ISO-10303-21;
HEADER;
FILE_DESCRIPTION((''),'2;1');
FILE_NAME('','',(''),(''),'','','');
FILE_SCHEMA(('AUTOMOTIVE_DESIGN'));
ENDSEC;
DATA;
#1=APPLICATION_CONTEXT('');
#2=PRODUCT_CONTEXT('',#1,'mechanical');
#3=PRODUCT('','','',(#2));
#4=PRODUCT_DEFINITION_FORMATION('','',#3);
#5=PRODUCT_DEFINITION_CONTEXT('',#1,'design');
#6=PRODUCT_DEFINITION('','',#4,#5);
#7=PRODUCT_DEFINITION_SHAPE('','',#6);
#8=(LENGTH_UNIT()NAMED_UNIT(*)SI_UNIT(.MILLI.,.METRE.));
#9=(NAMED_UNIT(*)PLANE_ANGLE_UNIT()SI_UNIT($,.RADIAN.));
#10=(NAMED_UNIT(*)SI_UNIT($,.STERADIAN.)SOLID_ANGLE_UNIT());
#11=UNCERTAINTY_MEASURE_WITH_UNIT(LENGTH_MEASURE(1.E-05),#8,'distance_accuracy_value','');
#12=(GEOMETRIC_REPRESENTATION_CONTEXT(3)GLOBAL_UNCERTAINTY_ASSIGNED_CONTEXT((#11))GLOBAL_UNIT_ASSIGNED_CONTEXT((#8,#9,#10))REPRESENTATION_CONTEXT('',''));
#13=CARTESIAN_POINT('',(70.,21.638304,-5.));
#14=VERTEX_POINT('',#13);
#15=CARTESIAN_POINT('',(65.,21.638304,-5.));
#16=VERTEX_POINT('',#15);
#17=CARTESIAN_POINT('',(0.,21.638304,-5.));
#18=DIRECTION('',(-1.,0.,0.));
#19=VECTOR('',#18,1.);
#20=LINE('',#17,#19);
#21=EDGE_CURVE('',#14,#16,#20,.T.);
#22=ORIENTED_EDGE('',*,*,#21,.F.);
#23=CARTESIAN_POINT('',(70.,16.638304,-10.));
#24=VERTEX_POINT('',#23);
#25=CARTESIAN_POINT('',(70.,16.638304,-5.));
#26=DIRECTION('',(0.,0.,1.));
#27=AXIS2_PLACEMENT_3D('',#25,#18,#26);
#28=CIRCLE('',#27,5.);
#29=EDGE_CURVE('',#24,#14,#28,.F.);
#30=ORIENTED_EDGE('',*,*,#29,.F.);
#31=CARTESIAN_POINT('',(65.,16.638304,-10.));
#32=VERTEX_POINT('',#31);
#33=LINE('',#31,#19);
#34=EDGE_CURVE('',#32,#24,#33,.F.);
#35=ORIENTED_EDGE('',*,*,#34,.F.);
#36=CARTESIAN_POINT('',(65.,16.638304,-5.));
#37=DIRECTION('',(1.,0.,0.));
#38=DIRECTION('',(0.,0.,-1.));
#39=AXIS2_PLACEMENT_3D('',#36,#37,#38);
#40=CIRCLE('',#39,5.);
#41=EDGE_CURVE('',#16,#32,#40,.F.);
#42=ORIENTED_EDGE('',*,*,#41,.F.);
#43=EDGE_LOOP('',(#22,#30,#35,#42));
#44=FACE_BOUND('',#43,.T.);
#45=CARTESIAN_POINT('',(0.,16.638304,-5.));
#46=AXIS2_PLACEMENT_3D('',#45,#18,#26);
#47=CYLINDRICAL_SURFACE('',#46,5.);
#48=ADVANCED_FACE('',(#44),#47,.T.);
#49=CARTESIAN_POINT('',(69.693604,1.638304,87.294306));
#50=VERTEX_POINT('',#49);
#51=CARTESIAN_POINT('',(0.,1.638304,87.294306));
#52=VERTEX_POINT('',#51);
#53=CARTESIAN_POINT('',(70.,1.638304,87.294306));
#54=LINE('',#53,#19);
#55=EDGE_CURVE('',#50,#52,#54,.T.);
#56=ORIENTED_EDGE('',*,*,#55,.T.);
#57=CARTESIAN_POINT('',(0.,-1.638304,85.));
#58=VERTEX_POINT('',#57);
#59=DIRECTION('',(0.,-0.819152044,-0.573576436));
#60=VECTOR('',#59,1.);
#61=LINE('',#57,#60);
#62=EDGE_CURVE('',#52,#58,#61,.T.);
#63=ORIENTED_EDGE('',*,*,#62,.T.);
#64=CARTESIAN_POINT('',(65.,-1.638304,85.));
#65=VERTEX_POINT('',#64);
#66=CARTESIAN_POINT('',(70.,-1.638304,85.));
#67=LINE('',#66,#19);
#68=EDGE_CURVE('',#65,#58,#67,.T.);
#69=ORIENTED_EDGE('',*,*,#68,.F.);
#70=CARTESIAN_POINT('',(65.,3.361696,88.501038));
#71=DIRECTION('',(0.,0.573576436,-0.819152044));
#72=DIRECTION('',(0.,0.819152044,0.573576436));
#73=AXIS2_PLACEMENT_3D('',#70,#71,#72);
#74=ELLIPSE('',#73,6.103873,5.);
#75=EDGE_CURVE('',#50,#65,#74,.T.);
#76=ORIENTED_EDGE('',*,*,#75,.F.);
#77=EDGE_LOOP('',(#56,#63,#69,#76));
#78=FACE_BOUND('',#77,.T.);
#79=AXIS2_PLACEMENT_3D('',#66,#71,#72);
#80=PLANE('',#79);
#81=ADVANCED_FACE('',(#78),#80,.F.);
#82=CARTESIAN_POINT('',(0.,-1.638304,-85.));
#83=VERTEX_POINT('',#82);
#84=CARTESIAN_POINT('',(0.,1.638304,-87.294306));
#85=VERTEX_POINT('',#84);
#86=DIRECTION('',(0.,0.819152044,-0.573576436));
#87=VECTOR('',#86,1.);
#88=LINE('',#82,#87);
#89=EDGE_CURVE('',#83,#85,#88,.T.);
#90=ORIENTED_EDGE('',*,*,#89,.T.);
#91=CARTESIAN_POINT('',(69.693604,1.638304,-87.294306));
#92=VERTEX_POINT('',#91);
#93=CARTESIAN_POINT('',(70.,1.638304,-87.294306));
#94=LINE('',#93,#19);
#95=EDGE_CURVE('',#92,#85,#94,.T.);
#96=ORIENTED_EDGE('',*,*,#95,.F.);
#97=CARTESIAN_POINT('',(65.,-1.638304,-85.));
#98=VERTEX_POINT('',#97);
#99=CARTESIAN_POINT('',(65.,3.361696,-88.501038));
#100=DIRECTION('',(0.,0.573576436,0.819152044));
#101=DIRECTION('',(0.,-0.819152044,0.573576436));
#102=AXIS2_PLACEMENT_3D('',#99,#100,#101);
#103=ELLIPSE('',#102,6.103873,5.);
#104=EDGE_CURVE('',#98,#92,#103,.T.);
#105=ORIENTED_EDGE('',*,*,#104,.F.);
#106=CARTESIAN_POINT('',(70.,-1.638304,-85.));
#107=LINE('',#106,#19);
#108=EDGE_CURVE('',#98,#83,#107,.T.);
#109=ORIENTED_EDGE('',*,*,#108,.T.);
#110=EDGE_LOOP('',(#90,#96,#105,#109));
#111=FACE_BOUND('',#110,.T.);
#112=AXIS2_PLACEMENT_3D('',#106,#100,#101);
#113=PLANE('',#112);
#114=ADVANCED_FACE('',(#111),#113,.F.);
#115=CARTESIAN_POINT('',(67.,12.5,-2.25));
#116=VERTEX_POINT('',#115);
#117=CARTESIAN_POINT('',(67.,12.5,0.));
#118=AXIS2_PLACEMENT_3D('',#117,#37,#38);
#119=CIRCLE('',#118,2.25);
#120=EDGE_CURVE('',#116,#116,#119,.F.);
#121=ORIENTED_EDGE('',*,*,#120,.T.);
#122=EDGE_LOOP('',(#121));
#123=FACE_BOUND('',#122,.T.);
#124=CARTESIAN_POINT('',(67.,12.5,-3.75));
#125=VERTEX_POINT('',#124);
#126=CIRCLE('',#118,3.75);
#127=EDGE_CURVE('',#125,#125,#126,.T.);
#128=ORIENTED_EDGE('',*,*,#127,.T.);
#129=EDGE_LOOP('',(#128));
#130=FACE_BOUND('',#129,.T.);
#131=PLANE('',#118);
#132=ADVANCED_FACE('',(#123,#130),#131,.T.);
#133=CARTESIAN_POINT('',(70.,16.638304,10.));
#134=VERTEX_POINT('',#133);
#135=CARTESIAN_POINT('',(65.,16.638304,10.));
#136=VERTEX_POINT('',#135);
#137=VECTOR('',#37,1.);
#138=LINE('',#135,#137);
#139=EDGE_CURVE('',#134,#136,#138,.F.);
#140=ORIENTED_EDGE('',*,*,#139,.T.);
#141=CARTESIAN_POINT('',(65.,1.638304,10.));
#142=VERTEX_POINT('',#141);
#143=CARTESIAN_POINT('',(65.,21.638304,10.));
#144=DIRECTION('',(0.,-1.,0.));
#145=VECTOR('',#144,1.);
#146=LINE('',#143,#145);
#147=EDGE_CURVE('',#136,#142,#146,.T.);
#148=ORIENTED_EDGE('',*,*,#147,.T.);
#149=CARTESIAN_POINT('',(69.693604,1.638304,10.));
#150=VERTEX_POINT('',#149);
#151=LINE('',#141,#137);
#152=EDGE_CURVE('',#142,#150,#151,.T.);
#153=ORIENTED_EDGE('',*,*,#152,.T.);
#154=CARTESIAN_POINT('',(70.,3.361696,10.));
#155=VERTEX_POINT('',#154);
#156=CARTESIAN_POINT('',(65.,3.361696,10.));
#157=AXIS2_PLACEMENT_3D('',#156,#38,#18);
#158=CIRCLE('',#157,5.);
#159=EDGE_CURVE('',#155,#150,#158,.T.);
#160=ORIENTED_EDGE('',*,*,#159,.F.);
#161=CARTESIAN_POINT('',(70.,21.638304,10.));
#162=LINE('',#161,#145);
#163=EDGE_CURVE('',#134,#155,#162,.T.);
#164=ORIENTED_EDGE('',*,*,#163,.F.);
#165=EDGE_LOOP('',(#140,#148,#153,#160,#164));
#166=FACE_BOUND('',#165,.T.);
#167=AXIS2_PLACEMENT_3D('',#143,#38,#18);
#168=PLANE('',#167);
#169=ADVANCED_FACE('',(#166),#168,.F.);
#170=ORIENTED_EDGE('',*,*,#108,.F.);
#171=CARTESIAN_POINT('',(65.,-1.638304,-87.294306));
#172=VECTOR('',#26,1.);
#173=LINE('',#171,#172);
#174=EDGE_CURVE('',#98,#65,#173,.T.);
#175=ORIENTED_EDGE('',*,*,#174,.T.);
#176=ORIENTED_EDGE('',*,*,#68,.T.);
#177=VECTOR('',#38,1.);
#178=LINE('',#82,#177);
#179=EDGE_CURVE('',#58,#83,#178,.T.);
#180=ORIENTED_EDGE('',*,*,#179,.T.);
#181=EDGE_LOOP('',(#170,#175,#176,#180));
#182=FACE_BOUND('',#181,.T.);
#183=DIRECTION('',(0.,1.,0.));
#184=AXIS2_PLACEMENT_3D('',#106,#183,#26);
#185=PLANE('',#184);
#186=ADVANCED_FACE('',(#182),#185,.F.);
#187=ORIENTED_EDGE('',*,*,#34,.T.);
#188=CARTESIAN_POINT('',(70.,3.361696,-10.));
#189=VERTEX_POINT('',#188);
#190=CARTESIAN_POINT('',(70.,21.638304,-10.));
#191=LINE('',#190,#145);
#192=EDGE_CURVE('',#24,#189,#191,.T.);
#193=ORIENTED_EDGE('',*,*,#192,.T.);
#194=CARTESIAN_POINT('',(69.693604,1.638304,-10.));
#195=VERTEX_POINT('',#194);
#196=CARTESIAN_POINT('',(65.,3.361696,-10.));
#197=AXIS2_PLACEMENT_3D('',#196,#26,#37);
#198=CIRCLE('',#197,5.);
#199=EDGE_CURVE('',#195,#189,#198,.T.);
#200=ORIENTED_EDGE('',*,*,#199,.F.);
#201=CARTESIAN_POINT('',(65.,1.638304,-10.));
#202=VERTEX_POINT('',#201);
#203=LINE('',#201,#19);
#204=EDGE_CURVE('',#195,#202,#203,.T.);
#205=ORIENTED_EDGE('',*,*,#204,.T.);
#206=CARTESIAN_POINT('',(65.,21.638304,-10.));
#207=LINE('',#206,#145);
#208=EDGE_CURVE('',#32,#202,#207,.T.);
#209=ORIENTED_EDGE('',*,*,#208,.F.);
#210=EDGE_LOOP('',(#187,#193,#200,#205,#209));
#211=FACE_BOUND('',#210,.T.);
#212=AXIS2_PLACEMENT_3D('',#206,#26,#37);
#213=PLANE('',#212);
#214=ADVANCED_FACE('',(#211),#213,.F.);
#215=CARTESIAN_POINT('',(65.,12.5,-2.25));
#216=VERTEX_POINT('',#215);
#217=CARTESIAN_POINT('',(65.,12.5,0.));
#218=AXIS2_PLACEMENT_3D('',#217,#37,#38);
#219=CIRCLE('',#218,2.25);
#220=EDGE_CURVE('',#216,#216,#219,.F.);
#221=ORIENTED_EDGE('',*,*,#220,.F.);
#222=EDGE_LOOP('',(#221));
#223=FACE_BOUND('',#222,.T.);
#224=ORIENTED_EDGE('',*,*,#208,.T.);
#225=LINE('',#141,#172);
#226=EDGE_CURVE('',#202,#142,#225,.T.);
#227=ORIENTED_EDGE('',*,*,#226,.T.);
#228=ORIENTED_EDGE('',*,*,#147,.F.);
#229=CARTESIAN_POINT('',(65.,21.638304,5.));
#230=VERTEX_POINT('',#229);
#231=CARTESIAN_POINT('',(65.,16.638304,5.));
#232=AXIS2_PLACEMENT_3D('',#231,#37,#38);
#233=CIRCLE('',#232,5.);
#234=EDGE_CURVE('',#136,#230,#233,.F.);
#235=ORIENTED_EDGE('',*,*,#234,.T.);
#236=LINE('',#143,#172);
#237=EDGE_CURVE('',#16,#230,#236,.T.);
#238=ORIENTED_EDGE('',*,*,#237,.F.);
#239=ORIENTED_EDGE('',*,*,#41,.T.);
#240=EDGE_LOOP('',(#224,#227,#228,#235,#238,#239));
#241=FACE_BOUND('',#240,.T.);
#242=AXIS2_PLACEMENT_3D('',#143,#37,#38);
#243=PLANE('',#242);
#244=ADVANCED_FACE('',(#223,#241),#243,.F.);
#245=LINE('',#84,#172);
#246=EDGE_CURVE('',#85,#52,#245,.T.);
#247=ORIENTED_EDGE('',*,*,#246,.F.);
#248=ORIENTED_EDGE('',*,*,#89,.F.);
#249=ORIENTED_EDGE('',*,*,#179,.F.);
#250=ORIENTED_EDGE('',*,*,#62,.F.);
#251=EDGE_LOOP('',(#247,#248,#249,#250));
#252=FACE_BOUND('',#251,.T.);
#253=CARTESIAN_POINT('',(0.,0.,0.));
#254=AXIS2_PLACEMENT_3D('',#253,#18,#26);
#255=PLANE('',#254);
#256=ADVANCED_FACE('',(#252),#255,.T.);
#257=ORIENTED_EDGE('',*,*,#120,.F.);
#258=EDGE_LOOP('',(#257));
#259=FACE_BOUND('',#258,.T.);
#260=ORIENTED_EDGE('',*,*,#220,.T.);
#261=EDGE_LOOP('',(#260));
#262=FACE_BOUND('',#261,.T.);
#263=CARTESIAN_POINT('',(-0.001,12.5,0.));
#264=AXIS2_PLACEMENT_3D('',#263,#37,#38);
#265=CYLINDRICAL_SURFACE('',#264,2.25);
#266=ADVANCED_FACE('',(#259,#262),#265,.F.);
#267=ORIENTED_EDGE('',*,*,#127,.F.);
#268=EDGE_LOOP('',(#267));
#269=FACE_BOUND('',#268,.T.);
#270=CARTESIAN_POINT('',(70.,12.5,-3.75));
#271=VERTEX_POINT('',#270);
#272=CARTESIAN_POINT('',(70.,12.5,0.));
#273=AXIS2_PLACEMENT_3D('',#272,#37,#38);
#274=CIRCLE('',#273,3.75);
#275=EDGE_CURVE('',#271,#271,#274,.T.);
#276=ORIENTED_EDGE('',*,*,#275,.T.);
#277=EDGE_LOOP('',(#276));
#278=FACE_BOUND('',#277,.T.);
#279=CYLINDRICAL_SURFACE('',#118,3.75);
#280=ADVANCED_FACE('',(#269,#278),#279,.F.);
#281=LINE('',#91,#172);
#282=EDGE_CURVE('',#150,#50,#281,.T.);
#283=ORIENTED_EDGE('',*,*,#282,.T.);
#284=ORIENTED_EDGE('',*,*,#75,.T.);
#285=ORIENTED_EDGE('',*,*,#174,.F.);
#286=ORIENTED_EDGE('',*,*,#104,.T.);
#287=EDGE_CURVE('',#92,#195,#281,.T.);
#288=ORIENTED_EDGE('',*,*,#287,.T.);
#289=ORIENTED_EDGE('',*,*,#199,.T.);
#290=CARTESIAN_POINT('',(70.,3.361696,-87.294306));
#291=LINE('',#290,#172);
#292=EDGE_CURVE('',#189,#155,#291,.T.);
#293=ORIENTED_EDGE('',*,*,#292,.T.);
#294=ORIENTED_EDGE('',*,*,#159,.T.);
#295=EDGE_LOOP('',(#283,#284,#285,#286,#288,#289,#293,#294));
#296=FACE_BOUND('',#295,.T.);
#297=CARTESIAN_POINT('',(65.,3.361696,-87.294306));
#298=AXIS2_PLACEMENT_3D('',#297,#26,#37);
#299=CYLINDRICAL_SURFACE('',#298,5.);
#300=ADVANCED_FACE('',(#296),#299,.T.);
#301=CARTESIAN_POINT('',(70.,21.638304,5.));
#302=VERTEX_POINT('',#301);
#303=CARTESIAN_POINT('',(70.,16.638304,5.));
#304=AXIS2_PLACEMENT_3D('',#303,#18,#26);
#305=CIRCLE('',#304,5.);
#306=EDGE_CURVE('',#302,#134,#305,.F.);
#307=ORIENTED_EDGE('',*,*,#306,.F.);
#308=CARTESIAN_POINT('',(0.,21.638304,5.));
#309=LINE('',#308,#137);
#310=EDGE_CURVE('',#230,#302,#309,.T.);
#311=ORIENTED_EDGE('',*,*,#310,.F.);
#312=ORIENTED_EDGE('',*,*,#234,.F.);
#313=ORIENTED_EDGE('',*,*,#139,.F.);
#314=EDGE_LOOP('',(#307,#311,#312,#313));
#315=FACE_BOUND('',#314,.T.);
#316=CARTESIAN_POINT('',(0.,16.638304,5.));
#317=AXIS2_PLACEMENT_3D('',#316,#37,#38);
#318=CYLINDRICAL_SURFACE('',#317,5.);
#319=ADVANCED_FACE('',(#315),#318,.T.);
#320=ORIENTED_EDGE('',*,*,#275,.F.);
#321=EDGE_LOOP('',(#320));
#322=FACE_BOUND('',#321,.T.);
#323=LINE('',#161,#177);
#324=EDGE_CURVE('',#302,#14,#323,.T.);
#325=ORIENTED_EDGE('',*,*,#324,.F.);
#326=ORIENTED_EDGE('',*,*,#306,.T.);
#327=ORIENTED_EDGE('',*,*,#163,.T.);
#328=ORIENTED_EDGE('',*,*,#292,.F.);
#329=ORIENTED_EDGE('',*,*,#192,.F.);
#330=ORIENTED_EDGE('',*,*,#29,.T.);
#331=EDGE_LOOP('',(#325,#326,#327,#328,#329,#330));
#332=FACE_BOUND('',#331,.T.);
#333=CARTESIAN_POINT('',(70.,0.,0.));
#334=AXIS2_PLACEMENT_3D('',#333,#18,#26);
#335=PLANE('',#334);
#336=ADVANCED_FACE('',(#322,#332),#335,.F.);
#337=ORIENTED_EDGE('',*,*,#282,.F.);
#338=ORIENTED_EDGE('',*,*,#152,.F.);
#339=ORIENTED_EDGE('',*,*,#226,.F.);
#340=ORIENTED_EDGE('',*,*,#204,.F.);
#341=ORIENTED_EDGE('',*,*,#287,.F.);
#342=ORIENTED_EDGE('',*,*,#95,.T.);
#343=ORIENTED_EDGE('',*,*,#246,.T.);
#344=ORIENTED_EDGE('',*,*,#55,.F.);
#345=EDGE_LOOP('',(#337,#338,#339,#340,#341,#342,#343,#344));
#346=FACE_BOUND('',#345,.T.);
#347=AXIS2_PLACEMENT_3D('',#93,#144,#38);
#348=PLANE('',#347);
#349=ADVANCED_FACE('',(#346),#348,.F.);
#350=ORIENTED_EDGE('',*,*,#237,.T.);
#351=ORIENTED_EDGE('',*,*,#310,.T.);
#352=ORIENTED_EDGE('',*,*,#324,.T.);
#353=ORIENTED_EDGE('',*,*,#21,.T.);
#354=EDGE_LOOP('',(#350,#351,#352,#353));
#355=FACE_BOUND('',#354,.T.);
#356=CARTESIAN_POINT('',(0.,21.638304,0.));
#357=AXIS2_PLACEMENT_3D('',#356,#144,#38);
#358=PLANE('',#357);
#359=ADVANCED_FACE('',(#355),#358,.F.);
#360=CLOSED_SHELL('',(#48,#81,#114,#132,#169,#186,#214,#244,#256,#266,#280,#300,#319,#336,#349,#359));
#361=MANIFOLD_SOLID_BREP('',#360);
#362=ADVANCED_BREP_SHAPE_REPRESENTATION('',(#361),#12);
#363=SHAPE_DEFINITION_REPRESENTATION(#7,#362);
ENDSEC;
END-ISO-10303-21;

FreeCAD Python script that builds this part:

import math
import FreeCAD as App
import Part
import Sketcher
from FreeCAD import Vector
Q = App.Units.Quantity


def edges_at(feature, points):
    """Names of the edges that pass closest to the given points."""
    edges = feature.Shape.Edges
    near = lambda p: min(range(len(edges)), key=lambda i: edges[i].distToShape(Part.Vertex(*p))[0])
    return sorted({f"Edge{near(p) + 1}" for p in points})


def add_polygon(sketch, points):
    """Adds a closed chain of lines whose ends are joined by coincident constraints."""
    first, n = sketch.GeometryCount, len(points)
    for a, b in zip(points, points[1:] + points[:1]):
        sketch.addGeometry(Part.LineSegment(App.Vector(*a, 0), App.Vector(*b, 0)), False)
    for i in range(n):
        sketch.addConstraint(Sketcher.Constraint("Coincident", first + i, 2, first + (i + 1) % n, 1))

doc = App.newDocument("Part")
body = doc.addObject("PartDesign::Body", "Body")

# Sketch on YZ plane
sketch1 = body.newObject("Sketcher::SketchObject", "Sketch")
sketch1.AttachmentSupport = (doc.getObject("YZ_Plane"), [""])
sketch1.MapMode = "FlatFace"
add_polygon(sketch1, [(1.638304, 87.294306), (-1.638304, 85), (-1.638304, -85), (1.638304, -87.294306)])  # lines 0-3
sketch1.addConstraint(Sketcher.Constraint("Vertical", 1))
sketch1.addConstraint(Sketcher.Constraint("Vertical", 3))
sketch1.addConstraint(Sketcher.Constraint("Equal", 0, 2))
sketch1.addConstraint(Sketcher.Constraint("DistanceY", 1, 2, 1, 1, 170.0))
sketch1.addConstraint(Sketcher.Constraint("Angle", 0, Q("-145 deg")))
sketch1.addConstraint(Sketcher.Constraint("Distance", 0, 4.0))
sketch1.addConstraint(Sketcher.Constraint("DistanceY", -1, 1, 0, 2, 85.0))
sketch1.addConstraint(Sketcher.Constraint("DistanceX", 0, 2, -1, 1, 1.638304))
pad1 = body.newObject("PartDesign::Pad", "Pad")
pad1.Profile = sketch1
pad1.Length = 70

# Sketch on XZ plane
sketch2 = body.newObject("Sketcher::SketchObject", "Sketch001")
sketch2.AttachmentSupport = (doc.getObject("XZ_Plane"), [""])
sketch2.MapMode = "FlatFace"
sketch2.AttachmentOffset = App.Placement(Vector(0, 0, -1.638304), App.Rotation())
add_polygon(sketch2, [(70, 10), (70, -10), (65, -10), (65, 10)])  # lines 0-3
sketch2.addConstraint(Sketcher.Constraint("Vertical", 0))
sketch2.addConstraint(Sketcher.Constraint("Horizontal", 1))
sketch2.addConstraint(Sketcher.Constraint("Vertical", 2))
sketch2.addConstraint(Sketcher.Constraint("Horizontal", 3))
sketch2.addConstraint(Sketcher.Constraint("DistanceX", 1, 2, 1, 1, 5.0))
sketch2.addConstraint(Sketcher.Constraint("DistanceY", 0, 2, 0, 1, 20.0))
sketch2.addConstraint(Sketcher.Constraint("DistanceX", -1, 1, 0, 2, 70.0))
sketch2.addConstraint(Sketcher.Constraint("DistanceY", 0, 2, -1, 1, 10.0))
pad2 = body.newObject("PartDesign::Pad", "Pad001")
pad2.Profile = sketch2
pad2.Length = 20
pad2.Reversed = True

# Sketch on XY plane
sketch3 = body.newObject("Sketcher::SketchObject", "Sketch002")
sketch3.AttachmentSupport = (doc.getObject("XY_Plane"), [""])
sketch3.MapMode = "FlatFace"
sketch3.addGeometry(Part.ArcOfCircle(Part.Circle(Vector(65, 3.361696, 0), Vector(0, 0, 1), 5), math.radians(-90), math.radians(0)), False)
sketch3.addGeometry(Part.LineSegment(Vector(65, -1.638304, 0), Vector(70, -1.638304, 0)), False)
sketch3.addGeometry(Part.LineSegment(Vector(70, -1.638304, 0), Vector(70, 3.361696, 0)), False)
sketch3.addConstraint(Sketcher.Constraint("Tangent", 0, 1, 1, 1))
sketch3.addConstraint(Sketcher.Constraint("Coincident", 1, 2, 2, 1))
sketch3.addConstraint(Sketcher.Constraint("Tangent", 2, 2, 0, 2))
sketch3.addConstraint(Sketcher.Constraint("Horizontal", 1))
sketch3.addConstraint(Sketcher.Constraint("Vertical", 2))
sketch3.addConstraint(Sketcher.Constraint("Radius", 0, 5.0))
sketch3.addConstraint(Sketcher.Constraint("DistanceX", -1, 1, 0, 3, 65.0))
sketch3.addConstraint(Sketcher.Constraint("DistanceY", -1, 1, 0, 3, 3.361696))
pocket1 = body.newObject("PartDesign::Pocket", "Pocket")
pocket1.Profile = sketch3
pocket1.Type = "ThroughAll"
pocket1.Midplane = True

# Sketch on YZ plane
sketch4 = body.newObject("Sketcher::SketchObject", "Sketch003")
sketch4.AttachmentSupport = (doc.getObject("YZ_Plane"), [""])
sketch4.MapMode = "FlatFace"
sketch4.AttachmentOffset = App.Placement(Vector(0, 0, 70), App.Rotation())
sketch4.addGeometry(Part.Circle(Vector(12.5, 0, 0), Vector(0, 0, 1), 2.25), False)
sketch4.addConstraint(Sketcher.Constraint("PointOnObject", 0, 3, -1))
sketch4.addConstraint(Sketcher.Constraint("Diameter", 0, 4.5))
sketch4.addConstraint(Sketcher.Constraint("DistanceX", -1, 1, 0, 3, 12.5))
pocket2 = body.newObject("PartDesign::Pocket", "Pocket001")
pocket2.Profile = sketch4
pocket2.Type = "UpToFirst"

# Sketch on YZ plane
sketch5 = body.newObject("Sketcher::SketchObject", "Sketch004")
sketch5.AttachmentSupport = (doc.getObject("YZ_Plane"), [""])
sketch5.MapMode = "FlatFace"
sketch5.AttachmentOffset = App.Placement(Vector(0, 0, 70), App.Rotation())
sketch5.addGeometry(Part.Circle(Vector(12.5, 0, 0), Vector(0, 0, 1), 3.75), False)
sketch5.addConstraint(Sketcher.Constraint("PointOnObject", 0, 3, -1))
sketch5.addConstraint(Sketcher.Constraint("Diameter", 0, 7.5))
sketch5.addConstraint(Sketcher.Constraint("DistanceX", -1, 1, 0, 3, 12.5))
pocket3 = body.newObject("PartDesign::Pocket", "Pocket002")
pocket3.Profile = sketch5
pocket3.Length = 3
doc.recompute()

fillet = body.newObject("PartDesign::Fillet", "Fillet")
fillet.Base = (pocket3, edges_at(pocket3, [(67.5, 21.638, 10), (67.5, 21.638, -10)]))
fillet.Radius = 5

doc.recompute()
